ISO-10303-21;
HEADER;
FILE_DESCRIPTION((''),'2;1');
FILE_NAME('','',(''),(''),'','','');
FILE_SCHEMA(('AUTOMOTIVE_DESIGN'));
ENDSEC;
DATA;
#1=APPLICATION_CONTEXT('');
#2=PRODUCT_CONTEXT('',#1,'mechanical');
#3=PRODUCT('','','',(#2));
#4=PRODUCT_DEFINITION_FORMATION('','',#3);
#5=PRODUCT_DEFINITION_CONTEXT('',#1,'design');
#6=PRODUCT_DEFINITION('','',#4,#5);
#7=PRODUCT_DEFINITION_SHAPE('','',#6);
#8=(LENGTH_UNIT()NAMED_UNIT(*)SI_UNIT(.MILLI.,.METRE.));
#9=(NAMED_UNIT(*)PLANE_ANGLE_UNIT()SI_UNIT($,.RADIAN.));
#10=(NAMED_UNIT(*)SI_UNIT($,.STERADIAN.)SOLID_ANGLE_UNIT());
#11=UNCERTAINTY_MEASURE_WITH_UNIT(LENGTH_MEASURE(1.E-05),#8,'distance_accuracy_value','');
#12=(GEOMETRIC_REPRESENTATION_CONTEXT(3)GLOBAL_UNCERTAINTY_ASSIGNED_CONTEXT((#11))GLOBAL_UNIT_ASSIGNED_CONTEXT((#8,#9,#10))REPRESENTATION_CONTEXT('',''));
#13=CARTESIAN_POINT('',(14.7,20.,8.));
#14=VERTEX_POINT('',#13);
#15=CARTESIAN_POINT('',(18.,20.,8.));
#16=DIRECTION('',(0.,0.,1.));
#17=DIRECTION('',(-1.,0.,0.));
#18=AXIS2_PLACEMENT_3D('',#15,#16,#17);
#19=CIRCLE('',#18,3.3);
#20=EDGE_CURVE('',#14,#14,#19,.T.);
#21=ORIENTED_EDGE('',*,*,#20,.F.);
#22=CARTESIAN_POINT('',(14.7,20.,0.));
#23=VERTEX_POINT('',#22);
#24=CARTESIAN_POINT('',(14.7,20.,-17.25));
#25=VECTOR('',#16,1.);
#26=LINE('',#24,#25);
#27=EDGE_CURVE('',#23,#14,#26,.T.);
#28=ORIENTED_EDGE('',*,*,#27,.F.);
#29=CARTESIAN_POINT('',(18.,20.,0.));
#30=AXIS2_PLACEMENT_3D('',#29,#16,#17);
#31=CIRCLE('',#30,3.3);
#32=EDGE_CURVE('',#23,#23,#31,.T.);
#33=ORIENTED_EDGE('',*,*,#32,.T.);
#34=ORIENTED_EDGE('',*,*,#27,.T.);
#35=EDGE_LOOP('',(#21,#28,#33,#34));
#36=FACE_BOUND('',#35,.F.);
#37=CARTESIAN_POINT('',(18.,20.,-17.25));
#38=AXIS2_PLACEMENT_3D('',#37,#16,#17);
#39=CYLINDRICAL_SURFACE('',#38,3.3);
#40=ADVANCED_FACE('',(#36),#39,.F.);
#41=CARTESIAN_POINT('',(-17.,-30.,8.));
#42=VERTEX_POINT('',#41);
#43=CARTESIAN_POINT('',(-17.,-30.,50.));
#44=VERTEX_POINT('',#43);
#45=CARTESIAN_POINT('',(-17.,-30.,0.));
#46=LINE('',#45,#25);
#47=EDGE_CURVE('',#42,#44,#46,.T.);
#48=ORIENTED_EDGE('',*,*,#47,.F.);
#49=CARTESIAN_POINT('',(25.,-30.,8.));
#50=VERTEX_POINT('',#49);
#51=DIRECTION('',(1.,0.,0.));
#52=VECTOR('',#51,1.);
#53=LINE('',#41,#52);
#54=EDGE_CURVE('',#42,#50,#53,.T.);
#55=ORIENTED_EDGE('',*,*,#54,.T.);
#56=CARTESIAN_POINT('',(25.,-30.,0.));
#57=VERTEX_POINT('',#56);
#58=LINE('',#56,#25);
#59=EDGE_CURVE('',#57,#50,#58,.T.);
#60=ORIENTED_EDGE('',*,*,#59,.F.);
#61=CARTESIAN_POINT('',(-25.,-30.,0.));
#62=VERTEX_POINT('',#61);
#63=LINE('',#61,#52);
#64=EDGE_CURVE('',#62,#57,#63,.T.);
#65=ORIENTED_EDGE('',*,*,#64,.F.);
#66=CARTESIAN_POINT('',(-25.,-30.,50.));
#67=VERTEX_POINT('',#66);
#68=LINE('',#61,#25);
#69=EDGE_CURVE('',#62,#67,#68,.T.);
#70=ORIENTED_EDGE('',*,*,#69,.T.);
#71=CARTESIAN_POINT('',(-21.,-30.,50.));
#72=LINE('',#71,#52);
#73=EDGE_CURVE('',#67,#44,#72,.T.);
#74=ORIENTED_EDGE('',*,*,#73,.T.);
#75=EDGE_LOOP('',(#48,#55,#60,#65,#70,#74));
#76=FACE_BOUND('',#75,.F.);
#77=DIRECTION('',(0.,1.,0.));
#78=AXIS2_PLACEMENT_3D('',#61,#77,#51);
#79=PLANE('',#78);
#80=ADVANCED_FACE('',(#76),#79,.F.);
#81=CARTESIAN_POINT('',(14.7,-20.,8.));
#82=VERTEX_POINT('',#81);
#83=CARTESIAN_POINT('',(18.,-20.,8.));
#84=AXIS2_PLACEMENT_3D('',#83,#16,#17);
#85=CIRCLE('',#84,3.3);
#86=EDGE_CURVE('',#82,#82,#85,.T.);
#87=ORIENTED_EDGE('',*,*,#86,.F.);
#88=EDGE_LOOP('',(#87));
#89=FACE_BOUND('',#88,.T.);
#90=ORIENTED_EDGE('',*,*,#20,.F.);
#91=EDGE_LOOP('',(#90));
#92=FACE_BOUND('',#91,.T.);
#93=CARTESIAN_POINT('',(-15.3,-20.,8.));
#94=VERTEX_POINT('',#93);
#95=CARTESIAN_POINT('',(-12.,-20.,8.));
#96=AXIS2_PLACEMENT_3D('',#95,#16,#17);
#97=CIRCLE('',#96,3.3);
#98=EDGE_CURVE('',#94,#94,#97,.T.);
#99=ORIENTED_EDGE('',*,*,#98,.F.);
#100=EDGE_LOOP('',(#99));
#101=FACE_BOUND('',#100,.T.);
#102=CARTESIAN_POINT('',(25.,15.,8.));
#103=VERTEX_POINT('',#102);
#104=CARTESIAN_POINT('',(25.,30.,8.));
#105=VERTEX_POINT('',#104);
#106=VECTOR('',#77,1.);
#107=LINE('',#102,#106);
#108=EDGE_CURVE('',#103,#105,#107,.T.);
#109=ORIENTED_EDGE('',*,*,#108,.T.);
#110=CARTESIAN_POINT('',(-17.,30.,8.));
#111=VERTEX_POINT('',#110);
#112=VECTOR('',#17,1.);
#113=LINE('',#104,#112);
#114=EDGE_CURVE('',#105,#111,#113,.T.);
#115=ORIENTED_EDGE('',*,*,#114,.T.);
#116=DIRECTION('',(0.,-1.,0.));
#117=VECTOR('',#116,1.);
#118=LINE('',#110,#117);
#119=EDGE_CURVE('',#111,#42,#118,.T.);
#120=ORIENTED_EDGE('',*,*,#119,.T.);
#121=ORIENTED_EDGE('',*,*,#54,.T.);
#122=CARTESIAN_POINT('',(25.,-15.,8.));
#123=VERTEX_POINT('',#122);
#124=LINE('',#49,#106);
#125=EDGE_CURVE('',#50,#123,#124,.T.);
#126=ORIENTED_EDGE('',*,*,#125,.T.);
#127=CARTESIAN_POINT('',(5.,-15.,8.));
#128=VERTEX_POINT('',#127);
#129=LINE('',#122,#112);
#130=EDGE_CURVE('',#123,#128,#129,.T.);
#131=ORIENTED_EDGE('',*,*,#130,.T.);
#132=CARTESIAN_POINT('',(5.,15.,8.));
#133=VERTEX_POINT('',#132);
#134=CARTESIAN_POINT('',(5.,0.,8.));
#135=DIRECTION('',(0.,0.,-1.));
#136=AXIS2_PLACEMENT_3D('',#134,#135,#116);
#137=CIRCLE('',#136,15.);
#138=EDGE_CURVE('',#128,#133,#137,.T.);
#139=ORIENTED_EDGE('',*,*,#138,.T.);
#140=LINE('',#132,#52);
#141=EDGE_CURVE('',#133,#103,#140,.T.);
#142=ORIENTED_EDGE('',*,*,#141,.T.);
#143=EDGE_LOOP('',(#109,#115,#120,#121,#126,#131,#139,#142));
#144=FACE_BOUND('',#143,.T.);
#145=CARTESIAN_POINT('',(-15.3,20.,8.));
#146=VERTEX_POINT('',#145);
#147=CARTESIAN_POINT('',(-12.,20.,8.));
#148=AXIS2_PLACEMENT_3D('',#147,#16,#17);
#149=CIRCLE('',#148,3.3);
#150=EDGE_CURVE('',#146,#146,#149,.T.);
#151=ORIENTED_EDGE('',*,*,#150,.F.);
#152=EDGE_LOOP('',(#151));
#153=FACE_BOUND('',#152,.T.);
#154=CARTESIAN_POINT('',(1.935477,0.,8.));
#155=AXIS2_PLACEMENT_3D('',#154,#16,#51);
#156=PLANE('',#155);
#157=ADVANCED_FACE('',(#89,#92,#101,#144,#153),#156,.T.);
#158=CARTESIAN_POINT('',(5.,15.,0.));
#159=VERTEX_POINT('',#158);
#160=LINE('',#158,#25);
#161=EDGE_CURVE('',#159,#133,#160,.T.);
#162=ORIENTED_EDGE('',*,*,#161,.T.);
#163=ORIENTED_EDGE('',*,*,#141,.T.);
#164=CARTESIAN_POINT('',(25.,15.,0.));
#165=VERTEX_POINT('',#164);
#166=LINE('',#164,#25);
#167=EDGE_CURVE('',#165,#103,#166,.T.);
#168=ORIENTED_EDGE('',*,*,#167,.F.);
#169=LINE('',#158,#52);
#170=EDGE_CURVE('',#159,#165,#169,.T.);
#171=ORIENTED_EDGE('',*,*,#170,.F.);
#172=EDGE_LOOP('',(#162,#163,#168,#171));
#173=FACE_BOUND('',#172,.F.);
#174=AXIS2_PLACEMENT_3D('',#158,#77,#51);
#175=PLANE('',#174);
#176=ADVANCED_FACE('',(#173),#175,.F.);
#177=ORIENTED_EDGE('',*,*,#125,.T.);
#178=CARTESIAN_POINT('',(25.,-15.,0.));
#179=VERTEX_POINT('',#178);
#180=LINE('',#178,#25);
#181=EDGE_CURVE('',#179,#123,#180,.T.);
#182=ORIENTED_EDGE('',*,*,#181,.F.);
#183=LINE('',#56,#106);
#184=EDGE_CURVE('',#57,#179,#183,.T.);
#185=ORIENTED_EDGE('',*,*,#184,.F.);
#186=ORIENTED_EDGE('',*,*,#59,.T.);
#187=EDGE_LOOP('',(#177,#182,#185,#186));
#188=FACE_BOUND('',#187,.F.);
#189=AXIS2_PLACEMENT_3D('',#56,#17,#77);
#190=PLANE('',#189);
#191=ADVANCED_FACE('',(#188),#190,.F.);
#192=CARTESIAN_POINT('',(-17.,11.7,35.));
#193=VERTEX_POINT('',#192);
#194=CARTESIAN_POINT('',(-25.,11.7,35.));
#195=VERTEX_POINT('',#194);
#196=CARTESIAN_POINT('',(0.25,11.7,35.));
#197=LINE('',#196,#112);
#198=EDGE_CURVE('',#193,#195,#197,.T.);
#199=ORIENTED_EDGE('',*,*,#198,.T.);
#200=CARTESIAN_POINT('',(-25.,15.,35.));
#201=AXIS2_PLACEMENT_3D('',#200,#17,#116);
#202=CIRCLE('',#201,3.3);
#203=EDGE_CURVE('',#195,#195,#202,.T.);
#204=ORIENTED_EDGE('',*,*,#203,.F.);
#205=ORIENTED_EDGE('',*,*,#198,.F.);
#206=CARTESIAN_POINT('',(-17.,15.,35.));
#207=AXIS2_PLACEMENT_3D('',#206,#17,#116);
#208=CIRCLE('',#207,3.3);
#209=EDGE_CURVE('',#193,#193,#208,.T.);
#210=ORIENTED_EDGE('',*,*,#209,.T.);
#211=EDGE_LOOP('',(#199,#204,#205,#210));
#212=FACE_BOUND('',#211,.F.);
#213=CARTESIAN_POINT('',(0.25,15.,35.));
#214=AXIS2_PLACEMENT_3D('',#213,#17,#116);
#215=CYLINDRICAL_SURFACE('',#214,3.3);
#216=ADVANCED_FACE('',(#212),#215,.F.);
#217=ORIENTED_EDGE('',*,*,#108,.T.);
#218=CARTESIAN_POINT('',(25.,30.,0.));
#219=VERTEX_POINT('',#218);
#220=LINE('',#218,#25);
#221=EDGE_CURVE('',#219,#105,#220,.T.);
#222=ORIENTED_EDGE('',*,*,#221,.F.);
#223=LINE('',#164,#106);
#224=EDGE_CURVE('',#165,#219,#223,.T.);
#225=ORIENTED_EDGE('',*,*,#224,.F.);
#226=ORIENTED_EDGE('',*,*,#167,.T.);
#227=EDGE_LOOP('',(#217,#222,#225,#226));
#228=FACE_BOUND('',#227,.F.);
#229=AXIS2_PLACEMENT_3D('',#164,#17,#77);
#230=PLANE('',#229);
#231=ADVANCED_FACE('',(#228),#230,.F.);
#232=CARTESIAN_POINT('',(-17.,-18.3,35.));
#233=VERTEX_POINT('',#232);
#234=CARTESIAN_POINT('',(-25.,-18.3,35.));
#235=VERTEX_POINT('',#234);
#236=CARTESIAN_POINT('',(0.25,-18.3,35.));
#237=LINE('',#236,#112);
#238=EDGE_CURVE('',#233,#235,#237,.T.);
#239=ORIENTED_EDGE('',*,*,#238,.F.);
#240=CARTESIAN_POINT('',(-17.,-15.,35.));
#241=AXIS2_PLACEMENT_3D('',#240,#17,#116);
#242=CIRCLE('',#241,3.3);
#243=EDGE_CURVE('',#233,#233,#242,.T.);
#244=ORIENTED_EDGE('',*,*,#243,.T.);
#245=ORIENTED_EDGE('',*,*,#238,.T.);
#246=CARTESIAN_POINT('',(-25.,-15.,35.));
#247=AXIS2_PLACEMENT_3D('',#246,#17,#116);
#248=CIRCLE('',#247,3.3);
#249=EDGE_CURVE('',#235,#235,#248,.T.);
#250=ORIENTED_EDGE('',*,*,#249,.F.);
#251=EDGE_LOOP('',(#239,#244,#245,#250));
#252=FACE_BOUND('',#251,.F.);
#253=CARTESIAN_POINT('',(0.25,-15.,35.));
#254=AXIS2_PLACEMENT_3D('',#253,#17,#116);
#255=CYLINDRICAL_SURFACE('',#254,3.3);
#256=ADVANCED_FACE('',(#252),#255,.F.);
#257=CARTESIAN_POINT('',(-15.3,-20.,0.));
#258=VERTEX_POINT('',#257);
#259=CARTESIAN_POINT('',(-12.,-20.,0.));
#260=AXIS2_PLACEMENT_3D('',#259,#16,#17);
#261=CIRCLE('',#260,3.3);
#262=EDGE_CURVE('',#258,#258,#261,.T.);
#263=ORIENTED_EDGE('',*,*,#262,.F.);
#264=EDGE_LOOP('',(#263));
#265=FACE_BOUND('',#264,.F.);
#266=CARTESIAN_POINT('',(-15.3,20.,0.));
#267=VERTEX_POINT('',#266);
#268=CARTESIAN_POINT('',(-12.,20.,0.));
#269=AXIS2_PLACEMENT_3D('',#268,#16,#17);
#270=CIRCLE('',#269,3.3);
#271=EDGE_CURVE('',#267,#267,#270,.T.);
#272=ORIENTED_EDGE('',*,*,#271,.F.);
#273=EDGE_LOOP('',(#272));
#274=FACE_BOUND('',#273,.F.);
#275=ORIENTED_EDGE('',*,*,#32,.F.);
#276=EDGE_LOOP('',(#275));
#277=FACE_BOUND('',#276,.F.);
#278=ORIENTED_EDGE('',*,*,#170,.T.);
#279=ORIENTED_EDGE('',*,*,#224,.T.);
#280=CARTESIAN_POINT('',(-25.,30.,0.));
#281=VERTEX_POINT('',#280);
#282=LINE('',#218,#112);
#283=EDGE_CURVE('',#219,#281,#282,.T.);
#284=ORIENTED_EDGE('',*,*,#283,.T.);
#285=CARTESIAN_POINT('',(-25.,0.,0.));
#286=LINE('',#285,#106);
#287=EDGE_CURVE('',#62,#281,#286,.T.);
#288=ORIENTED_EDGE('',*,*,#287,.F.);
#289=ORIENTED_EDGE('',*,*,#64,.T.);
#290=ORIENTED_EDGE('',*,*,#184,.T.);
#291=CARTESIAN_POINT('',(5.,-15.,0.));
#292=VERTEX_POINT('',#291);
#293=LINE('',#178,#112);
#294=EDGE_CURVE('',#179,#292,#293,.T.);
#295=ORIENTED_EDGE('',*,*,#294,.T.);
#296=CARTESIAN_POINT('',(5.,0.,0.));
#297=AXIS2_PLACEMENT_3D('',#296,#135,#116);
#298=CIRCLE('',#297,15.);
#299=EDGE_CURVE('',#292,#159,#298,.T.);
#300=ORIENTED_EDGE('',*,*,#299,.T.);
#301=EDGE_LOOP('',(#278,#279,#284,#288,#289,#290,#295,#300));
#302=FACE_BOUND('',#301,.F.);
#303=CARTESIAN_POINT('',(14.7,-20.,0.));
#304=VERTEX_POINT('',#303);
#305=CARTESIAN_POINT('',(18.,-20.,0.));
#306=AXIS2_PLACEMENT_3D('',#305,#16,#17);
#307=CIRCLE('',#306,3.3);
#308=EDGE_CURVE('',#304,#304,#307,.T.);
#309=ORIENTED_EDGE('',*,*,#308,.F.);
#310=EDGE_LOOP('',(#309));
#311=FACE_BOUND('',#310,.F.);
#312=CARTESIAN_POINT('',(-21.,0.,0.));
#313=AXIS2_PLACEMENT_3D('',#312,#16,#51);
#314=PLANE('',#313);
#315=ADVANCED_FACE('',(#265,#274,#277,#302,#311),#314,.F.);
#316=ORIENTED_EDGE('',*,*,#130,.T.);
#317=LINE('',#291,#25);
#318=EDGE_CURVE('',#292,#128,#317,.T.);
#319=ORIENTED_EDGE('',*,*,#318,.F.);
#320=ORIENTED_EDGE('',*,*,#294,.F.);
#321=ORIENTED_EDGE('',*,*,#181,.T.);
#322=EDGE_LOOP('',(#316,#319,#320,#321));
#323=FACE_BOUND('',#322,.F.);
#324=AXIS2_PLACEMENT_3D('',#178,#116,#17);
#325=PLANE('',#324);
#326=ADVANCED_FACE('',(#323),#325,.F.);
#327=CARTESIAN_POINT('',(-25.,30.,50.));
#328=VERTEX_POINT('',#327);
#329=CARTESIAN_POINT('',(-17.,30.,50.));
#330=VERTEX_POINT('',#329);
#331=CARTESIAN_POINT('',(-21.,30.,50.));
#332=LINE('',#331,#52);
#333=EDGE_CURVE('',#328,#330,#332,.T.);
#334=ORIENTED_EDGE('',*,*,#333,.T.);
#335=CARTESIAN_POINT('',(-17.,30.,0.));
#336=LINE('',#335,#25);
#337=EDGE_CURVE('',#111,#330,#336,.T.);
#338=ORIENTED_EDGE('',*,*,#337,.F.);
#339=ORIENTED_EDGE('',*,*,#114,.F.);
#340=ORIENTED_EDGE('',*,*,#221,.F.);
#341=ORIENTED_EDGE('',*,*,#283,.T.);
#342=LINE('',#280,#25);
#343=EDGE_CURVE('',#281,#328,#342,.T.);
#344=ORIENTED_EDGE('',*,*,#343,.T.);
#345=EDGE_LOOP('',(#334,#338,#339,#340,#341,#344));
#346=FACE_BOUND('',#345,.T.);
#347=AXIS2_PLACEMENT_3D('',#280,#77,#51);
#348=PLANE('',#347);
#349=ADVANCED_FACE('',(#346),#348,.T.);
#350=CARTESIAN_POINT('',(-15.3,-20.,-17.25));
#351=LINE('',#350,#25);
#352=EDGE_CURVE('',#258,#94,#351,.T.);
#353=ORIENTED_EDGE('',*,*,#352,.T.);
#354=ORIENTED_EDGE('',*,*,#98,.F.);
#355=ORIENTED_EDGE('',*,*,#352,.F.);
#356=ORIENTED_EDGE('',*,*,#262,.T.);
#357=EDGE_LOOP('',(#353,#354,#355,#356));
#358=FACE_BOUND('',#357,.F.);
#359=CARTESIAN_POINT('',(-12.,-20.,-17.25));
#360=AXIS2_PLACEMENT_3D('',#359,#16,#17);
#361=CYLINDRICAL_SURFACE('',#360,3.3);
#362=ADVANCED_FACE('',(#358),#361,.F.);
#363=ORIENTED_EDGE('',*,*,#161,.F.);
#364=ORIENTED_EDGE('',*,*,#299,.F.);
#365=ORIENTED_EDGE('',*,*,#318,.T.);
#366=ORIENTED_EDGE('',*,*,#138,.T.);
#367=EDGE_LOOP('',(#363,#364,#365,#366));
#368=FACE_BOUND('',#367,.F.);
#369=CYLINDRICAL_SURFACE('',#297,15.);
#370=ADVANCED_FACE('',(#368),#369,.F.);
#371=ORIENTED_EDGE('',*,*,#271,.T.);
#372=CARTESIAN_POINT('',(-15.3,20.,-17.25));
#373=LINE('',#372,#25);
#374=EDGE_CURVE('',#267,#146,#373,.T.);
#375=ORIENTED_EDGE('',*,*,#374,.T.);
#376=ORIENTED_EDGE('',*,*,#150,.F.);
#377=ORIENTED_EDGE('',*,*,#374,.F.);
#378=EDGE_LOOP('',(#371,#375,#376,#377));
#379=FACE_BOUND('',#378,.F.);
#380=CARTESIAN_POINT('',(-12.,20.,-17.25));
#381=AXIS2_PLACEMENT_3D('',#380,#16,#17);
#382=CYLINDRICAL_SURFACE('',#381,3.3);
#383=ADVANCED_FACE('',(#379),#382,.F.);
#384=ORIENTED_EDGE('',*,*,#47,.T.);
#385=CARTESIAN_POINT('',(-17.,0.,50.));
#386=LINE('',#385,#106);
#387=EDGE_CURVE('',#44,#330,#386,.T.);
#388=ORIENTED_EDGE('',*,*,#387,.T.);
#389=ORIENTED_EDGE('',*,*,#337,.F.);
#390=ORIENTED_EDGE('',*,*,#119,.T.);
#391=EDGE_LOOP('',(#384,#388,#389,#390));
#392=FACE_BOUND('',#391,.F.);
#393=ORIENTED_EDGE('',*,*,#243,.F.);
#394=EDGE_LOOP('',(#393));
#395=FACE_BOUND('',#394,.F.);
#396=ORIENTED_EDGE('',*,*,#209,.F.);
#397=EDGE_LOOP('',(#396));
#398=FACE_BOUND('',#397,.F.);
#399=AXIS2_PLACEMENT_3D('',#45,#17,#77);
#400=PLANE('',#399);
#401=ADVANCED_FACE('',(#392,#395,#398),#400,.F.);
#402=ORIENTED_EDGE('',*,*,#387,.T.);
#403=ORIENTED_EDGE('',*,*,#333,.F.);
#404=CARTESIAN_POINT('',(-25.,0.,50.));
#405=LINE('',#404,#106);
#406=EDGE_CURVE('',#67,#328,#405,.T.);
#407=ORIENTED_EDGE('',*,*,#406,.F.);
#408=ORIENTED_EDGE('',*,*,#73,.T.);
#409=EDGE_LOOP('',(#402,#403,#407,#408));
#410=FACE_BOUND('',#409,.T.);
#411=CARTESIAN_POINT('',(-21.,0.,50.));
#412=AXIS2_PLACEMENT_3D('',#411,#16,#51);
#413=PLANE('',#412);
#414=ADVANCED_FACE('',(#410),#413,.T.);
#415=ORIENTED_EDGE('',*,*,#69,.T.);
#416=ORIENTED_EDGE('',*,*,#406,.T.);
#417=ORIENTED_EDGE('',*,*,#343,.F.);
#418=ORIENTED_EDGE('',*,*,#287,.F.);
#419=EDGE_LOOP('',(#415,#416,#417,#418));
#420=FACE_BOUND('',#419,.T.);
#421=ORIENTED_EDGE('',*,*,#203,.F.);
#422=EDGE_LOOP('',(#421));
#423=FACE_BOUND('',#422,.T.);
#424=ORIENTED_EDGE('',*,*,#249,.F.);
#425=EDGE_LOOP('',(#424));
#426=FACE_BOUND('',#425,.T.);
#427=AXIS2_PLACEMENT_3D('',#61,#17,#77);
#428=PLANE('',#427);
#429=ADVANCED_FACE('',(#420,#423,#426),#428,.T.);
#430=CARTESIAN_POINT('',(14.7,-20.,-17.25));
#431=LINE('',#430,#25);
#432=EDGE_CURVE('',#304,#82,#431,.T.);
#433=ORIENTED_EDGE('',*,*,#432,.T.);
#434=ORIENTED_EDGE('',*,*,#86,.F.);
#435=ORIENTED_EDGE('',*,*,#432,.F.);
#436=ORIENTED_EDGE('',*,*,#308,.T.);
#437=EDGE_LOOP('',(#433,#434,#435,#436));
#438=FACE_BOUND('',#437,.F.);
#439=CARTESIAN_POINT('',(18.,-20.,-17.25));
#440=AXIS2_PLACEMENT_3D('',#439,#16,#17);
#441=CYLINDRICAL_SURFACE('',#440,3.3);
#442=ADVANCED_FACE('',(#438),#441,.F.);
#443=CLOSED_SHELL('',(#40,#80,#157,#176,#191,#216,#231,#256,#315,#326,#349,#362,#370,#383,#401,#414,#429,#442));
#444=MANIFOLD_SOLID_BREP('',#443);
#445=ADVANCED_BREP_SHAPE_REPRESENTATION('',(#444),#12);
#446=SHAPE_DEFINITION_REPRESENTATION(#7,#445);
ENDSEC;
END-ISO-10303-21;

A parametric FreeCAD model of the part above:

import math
import FreeCAD as App
import Part
import Sketcher

V = App.Vector
Q = App.Units.Quantity


def add_polygon(sketch, points):
    """Adds a closed chain of lines whose ends are joined by coincident constraints."""
    first, n = sketch.GeometryCount, len(points)
    for a, b in zip(points, points[1:] + points[:1]):
        sketch.addGeometry(Part.LineSegment(App.Vector(*a, 0), App.Vector(*b, 0)), False)
    for i in range(n):
        sketch.addConstraint(Sketcher.Constraint("Coincident", first + i, 2, first + (i + 1) % n, 1))

doc = App.newDocument("Part")
body = doc.addObject("PartDesign::Body", "Body")

# Sketch on XY plane
sketch1 = doc.addObject("Sketcher::SketchObject", "Sketch")
body.addObject(sketch1)
sketch1.AttachmentSupport = (doc.XY_Plane, [""])
sketch1.MapMode = "FlatFace"
sketch1.addGeometry([
    Part.LineSegment(V(-17, -30, 0), V(25, -30, 0)),  # 0
    Part.LineSegment(V(25, -30, 0), V(25, -15, 0)),  # 1
    Part.LineSegment(V(25, -15, 0), V(5, -15, 0)),  # 2
    Part.ArcOfCircle(Part.Circle(V(5, 0, 0), V(0, 0, 1), 15), math.radians(90), math.radians(270)),  # 3
    Part.LineSegment(V(5, 15, 0), V(25, 15, 0)),  # 4
    Part.LineSegment(V(25, 15, 0), V(25, 30, 0)),  # 5
    Part.LineSegment(V(25, 30, 0), V(-17, 30, 0)),  # 6
    Part.LineSegment(V(-17, 30, 0), V(-17, -30, 0)),  # 7
], False)
sketch1.addConstraint([
    Sketcher.Constraint("Coincident", 0, 2, 1, 1),
    Sketcher.Constraint("Coincident", 1, 2, 2, 1),
    Sketcher.Constraint("Tangent", 2, 2, 3, 2),
    Sketcher.Constraint("Tangent", 3, 1, 4, 1),
    Sketcher.Constraint("Coincident", 4, 2, 5, 1),
    Sketcher.Constraint("Coincident", 5, 2, 6, 1),
    Sketcher.Constraint("Coincident", 6, 2, 7, 1),
    Sketcher.Constraint("Coincident", 7, 2, 0, 1),
    Sketcher.Constraint("Horizontal", 0),
    Sketcher.Constraint("Vertical", 1),
    Sketcher.Constraint("Horizontal", 2),
    Sketcher.Constraint("Horizontal", 4),
    Sketcher.Constraint("Vertical", 5),
    Sketcher.Constraint("Horizontal", 6),
    Sketcher.Constraint("Vertical", 7),
    Sketcher.Constraint("Symmetric", 1, 2, 4, 2, -1),
    Sketcher.Constraint("Equal", 1, 5),
    Sketcher.Constraint("Radius", 3, Q("15 mm")),
    Sketcher.Constraint("DistanceX", 0, 1, 0, 2, Q("42 mm")),
    Sketcher.Constraint("DistanceX", 2, 2, 2, 1, Q("20 mm")),
    Sketcher.Constraint("DistanceY", 1, 1, 1, 2, Q("15 mm")),
    Sketcher.Constraint("DistanceX", -1, 1, 3, 3, Q("5 mm")),
])
pad1 = doc.addObject("PartDesign::Pad", "Pad")
body.addObject(pad1)
pad1.Profile = sketch1
pad1.Length = 8

# Sketch on XY plane
sketch2 = doc.addObject("Sketcher::SketchObject", "Sketch001")
body.addObject(sketch2)
sketch2.AttachmentSupport = (doc.XY_Plane, [""])
sketch2.MapMode = "FlatFace"
add_polygon(sketch2, [(-25, 30), (-25, -30), (-17, -30), (-17, 30)])  # lines 0-3
sketch2.addConstraint([
    Sketcher.Constraint("Vertical", 0),
    Sketcher.Constraint("Horizontal", 1),
    Sketcher.Constraint("Vertical", 2),
    Sketcher.Constraint("Horizontal", 3),
    Sketcher.Constraint("DistanceX", 1, 1, 1, 2, Q("8 mm")),
    Sketcher.Constraint("DistanceY", 0, 2, 0, 1, Q("60 mm")),
    Sketcher.Constraint("DistanceX", 0, 2, -1, 1, Q("25 mm")),
    Sketcher.Constraint("DistanceY", 0, 2, -1, 1, Q("30 mm")),
])
pad2 = doc.addObject("PartDesign::Pad", "Pad001")
body.addObject(pad2)
pad2.Profile = sketch2
pad2.Length = 50

# Sketch on XY plane
sketch3 = doc.addObject("Sketcher::SketchObject", "Sketch002")
body.addObject(sketch3)
sketch3.AttachmentSupport = (doc.XY_Plane, [""])
sketch3.MapMode = "FlatFace"
sketch3.addGeometry([
    Part.Circle(V(18, -20, 0), V(0, 0, 1), 3.3),
    Part.Circle(V(-12, -20, 0), V(0, 0, 1), 3.3),
    Part.Circle(V(18, 20, 0), V(0, 0, 1), 3.3),
    Part.Circle(V(-12, 20, 0), V(0, 0, 1), 3.3),
], False)
sketch3.addConstraint([
    Sketcher.Constraint("Equal", 0, 1),
    Sketcher.Constraint("Equal", 1, 2),
    Sketcher.Constraint("Equal", 2, 3),
    Sketcher.Constraint("Symmetric", 0, 3, 2, 3, -1),
    Sketcher.Constraint("Symmetric", 1, 3, 3, 3, -1),
    Sketcher.Constraint("Horizontal", 0, 3, 1, 3),
    Sketcher.Constraint("Diameter", 0, Q("6.6 mm")),
    Sketcher.Constraint("DistanceX", -1, 1, 0, 3, Q("18 mm")),
    Sketcher.Constraint("DistanceY", 0, 3, -1, 1, Q("20 mm")),
    Sketcher.Constraint("DistanceX", 1, 3, -1, 1, Q("12 mm")),
])
doc.recompute()
hole = doc.addObject("PartDesign::Hole", "Hole")
body.addObject(hole)
hole.Profile = sketch3
hole.ThreadType = "None"
hole.Diameter = 6.6
hole.DepthType = "Dimension"
hole.Depth = 17.25
hole.DrillPoint = "Angled"
hole.DrillPointAngle = 118
hole.Reversed = True

# Sketch on YZ plane
sketch4 = doc.addObject("Sketcher::SketchObject", "Sketch003")
body.addObject(sketch4)
sketch4.AttachmentSupport = (doc.YZ_Plane, [""])
sketch4.MapMode = "FlatFace"
sketch4.AttachmentOffset = App.Placement(V(0, 0, -17), App.Rotation())
sketch4.addGeometry([
    Part.Circle(V(-15, 35, 0), V(0, 0, 1), 3.3),
    Part.Circle(V(15, 35, 0), V(0, 0, 1), 3.3),
], False)
sketch4.addConstraint([
    Sketcher.Constraint("Equal", 0, 1),
    Sketcher.Constraint("Symmetric", 0, 3, 1, 3, -2),
    Sketcher.Constraint("Diameter", 0, Q("6.6 mm")),
    Sketcher.Constraint("DistanceX", 0, 3, -1, 1, Q("15 mm")),
    Sketcher.Constraint("DistanceY", -1, 1, 0, 3, Q("35 mm")),
])
doc.recompute()
hole2 = doc.addObject("PartDesign::Hole", "Hole001")
body.addObject(hole2)
hole2.Profile = sketch4
hole2.ThreadType = "None"
hole2.Diameter = 6.6
hole2.DepthType = "Dimension"
hole2.Depth = 17.25
hole2.DrillPoint = "Angled"
hole2.DrillPointAngle = 118

doc.recompute()
